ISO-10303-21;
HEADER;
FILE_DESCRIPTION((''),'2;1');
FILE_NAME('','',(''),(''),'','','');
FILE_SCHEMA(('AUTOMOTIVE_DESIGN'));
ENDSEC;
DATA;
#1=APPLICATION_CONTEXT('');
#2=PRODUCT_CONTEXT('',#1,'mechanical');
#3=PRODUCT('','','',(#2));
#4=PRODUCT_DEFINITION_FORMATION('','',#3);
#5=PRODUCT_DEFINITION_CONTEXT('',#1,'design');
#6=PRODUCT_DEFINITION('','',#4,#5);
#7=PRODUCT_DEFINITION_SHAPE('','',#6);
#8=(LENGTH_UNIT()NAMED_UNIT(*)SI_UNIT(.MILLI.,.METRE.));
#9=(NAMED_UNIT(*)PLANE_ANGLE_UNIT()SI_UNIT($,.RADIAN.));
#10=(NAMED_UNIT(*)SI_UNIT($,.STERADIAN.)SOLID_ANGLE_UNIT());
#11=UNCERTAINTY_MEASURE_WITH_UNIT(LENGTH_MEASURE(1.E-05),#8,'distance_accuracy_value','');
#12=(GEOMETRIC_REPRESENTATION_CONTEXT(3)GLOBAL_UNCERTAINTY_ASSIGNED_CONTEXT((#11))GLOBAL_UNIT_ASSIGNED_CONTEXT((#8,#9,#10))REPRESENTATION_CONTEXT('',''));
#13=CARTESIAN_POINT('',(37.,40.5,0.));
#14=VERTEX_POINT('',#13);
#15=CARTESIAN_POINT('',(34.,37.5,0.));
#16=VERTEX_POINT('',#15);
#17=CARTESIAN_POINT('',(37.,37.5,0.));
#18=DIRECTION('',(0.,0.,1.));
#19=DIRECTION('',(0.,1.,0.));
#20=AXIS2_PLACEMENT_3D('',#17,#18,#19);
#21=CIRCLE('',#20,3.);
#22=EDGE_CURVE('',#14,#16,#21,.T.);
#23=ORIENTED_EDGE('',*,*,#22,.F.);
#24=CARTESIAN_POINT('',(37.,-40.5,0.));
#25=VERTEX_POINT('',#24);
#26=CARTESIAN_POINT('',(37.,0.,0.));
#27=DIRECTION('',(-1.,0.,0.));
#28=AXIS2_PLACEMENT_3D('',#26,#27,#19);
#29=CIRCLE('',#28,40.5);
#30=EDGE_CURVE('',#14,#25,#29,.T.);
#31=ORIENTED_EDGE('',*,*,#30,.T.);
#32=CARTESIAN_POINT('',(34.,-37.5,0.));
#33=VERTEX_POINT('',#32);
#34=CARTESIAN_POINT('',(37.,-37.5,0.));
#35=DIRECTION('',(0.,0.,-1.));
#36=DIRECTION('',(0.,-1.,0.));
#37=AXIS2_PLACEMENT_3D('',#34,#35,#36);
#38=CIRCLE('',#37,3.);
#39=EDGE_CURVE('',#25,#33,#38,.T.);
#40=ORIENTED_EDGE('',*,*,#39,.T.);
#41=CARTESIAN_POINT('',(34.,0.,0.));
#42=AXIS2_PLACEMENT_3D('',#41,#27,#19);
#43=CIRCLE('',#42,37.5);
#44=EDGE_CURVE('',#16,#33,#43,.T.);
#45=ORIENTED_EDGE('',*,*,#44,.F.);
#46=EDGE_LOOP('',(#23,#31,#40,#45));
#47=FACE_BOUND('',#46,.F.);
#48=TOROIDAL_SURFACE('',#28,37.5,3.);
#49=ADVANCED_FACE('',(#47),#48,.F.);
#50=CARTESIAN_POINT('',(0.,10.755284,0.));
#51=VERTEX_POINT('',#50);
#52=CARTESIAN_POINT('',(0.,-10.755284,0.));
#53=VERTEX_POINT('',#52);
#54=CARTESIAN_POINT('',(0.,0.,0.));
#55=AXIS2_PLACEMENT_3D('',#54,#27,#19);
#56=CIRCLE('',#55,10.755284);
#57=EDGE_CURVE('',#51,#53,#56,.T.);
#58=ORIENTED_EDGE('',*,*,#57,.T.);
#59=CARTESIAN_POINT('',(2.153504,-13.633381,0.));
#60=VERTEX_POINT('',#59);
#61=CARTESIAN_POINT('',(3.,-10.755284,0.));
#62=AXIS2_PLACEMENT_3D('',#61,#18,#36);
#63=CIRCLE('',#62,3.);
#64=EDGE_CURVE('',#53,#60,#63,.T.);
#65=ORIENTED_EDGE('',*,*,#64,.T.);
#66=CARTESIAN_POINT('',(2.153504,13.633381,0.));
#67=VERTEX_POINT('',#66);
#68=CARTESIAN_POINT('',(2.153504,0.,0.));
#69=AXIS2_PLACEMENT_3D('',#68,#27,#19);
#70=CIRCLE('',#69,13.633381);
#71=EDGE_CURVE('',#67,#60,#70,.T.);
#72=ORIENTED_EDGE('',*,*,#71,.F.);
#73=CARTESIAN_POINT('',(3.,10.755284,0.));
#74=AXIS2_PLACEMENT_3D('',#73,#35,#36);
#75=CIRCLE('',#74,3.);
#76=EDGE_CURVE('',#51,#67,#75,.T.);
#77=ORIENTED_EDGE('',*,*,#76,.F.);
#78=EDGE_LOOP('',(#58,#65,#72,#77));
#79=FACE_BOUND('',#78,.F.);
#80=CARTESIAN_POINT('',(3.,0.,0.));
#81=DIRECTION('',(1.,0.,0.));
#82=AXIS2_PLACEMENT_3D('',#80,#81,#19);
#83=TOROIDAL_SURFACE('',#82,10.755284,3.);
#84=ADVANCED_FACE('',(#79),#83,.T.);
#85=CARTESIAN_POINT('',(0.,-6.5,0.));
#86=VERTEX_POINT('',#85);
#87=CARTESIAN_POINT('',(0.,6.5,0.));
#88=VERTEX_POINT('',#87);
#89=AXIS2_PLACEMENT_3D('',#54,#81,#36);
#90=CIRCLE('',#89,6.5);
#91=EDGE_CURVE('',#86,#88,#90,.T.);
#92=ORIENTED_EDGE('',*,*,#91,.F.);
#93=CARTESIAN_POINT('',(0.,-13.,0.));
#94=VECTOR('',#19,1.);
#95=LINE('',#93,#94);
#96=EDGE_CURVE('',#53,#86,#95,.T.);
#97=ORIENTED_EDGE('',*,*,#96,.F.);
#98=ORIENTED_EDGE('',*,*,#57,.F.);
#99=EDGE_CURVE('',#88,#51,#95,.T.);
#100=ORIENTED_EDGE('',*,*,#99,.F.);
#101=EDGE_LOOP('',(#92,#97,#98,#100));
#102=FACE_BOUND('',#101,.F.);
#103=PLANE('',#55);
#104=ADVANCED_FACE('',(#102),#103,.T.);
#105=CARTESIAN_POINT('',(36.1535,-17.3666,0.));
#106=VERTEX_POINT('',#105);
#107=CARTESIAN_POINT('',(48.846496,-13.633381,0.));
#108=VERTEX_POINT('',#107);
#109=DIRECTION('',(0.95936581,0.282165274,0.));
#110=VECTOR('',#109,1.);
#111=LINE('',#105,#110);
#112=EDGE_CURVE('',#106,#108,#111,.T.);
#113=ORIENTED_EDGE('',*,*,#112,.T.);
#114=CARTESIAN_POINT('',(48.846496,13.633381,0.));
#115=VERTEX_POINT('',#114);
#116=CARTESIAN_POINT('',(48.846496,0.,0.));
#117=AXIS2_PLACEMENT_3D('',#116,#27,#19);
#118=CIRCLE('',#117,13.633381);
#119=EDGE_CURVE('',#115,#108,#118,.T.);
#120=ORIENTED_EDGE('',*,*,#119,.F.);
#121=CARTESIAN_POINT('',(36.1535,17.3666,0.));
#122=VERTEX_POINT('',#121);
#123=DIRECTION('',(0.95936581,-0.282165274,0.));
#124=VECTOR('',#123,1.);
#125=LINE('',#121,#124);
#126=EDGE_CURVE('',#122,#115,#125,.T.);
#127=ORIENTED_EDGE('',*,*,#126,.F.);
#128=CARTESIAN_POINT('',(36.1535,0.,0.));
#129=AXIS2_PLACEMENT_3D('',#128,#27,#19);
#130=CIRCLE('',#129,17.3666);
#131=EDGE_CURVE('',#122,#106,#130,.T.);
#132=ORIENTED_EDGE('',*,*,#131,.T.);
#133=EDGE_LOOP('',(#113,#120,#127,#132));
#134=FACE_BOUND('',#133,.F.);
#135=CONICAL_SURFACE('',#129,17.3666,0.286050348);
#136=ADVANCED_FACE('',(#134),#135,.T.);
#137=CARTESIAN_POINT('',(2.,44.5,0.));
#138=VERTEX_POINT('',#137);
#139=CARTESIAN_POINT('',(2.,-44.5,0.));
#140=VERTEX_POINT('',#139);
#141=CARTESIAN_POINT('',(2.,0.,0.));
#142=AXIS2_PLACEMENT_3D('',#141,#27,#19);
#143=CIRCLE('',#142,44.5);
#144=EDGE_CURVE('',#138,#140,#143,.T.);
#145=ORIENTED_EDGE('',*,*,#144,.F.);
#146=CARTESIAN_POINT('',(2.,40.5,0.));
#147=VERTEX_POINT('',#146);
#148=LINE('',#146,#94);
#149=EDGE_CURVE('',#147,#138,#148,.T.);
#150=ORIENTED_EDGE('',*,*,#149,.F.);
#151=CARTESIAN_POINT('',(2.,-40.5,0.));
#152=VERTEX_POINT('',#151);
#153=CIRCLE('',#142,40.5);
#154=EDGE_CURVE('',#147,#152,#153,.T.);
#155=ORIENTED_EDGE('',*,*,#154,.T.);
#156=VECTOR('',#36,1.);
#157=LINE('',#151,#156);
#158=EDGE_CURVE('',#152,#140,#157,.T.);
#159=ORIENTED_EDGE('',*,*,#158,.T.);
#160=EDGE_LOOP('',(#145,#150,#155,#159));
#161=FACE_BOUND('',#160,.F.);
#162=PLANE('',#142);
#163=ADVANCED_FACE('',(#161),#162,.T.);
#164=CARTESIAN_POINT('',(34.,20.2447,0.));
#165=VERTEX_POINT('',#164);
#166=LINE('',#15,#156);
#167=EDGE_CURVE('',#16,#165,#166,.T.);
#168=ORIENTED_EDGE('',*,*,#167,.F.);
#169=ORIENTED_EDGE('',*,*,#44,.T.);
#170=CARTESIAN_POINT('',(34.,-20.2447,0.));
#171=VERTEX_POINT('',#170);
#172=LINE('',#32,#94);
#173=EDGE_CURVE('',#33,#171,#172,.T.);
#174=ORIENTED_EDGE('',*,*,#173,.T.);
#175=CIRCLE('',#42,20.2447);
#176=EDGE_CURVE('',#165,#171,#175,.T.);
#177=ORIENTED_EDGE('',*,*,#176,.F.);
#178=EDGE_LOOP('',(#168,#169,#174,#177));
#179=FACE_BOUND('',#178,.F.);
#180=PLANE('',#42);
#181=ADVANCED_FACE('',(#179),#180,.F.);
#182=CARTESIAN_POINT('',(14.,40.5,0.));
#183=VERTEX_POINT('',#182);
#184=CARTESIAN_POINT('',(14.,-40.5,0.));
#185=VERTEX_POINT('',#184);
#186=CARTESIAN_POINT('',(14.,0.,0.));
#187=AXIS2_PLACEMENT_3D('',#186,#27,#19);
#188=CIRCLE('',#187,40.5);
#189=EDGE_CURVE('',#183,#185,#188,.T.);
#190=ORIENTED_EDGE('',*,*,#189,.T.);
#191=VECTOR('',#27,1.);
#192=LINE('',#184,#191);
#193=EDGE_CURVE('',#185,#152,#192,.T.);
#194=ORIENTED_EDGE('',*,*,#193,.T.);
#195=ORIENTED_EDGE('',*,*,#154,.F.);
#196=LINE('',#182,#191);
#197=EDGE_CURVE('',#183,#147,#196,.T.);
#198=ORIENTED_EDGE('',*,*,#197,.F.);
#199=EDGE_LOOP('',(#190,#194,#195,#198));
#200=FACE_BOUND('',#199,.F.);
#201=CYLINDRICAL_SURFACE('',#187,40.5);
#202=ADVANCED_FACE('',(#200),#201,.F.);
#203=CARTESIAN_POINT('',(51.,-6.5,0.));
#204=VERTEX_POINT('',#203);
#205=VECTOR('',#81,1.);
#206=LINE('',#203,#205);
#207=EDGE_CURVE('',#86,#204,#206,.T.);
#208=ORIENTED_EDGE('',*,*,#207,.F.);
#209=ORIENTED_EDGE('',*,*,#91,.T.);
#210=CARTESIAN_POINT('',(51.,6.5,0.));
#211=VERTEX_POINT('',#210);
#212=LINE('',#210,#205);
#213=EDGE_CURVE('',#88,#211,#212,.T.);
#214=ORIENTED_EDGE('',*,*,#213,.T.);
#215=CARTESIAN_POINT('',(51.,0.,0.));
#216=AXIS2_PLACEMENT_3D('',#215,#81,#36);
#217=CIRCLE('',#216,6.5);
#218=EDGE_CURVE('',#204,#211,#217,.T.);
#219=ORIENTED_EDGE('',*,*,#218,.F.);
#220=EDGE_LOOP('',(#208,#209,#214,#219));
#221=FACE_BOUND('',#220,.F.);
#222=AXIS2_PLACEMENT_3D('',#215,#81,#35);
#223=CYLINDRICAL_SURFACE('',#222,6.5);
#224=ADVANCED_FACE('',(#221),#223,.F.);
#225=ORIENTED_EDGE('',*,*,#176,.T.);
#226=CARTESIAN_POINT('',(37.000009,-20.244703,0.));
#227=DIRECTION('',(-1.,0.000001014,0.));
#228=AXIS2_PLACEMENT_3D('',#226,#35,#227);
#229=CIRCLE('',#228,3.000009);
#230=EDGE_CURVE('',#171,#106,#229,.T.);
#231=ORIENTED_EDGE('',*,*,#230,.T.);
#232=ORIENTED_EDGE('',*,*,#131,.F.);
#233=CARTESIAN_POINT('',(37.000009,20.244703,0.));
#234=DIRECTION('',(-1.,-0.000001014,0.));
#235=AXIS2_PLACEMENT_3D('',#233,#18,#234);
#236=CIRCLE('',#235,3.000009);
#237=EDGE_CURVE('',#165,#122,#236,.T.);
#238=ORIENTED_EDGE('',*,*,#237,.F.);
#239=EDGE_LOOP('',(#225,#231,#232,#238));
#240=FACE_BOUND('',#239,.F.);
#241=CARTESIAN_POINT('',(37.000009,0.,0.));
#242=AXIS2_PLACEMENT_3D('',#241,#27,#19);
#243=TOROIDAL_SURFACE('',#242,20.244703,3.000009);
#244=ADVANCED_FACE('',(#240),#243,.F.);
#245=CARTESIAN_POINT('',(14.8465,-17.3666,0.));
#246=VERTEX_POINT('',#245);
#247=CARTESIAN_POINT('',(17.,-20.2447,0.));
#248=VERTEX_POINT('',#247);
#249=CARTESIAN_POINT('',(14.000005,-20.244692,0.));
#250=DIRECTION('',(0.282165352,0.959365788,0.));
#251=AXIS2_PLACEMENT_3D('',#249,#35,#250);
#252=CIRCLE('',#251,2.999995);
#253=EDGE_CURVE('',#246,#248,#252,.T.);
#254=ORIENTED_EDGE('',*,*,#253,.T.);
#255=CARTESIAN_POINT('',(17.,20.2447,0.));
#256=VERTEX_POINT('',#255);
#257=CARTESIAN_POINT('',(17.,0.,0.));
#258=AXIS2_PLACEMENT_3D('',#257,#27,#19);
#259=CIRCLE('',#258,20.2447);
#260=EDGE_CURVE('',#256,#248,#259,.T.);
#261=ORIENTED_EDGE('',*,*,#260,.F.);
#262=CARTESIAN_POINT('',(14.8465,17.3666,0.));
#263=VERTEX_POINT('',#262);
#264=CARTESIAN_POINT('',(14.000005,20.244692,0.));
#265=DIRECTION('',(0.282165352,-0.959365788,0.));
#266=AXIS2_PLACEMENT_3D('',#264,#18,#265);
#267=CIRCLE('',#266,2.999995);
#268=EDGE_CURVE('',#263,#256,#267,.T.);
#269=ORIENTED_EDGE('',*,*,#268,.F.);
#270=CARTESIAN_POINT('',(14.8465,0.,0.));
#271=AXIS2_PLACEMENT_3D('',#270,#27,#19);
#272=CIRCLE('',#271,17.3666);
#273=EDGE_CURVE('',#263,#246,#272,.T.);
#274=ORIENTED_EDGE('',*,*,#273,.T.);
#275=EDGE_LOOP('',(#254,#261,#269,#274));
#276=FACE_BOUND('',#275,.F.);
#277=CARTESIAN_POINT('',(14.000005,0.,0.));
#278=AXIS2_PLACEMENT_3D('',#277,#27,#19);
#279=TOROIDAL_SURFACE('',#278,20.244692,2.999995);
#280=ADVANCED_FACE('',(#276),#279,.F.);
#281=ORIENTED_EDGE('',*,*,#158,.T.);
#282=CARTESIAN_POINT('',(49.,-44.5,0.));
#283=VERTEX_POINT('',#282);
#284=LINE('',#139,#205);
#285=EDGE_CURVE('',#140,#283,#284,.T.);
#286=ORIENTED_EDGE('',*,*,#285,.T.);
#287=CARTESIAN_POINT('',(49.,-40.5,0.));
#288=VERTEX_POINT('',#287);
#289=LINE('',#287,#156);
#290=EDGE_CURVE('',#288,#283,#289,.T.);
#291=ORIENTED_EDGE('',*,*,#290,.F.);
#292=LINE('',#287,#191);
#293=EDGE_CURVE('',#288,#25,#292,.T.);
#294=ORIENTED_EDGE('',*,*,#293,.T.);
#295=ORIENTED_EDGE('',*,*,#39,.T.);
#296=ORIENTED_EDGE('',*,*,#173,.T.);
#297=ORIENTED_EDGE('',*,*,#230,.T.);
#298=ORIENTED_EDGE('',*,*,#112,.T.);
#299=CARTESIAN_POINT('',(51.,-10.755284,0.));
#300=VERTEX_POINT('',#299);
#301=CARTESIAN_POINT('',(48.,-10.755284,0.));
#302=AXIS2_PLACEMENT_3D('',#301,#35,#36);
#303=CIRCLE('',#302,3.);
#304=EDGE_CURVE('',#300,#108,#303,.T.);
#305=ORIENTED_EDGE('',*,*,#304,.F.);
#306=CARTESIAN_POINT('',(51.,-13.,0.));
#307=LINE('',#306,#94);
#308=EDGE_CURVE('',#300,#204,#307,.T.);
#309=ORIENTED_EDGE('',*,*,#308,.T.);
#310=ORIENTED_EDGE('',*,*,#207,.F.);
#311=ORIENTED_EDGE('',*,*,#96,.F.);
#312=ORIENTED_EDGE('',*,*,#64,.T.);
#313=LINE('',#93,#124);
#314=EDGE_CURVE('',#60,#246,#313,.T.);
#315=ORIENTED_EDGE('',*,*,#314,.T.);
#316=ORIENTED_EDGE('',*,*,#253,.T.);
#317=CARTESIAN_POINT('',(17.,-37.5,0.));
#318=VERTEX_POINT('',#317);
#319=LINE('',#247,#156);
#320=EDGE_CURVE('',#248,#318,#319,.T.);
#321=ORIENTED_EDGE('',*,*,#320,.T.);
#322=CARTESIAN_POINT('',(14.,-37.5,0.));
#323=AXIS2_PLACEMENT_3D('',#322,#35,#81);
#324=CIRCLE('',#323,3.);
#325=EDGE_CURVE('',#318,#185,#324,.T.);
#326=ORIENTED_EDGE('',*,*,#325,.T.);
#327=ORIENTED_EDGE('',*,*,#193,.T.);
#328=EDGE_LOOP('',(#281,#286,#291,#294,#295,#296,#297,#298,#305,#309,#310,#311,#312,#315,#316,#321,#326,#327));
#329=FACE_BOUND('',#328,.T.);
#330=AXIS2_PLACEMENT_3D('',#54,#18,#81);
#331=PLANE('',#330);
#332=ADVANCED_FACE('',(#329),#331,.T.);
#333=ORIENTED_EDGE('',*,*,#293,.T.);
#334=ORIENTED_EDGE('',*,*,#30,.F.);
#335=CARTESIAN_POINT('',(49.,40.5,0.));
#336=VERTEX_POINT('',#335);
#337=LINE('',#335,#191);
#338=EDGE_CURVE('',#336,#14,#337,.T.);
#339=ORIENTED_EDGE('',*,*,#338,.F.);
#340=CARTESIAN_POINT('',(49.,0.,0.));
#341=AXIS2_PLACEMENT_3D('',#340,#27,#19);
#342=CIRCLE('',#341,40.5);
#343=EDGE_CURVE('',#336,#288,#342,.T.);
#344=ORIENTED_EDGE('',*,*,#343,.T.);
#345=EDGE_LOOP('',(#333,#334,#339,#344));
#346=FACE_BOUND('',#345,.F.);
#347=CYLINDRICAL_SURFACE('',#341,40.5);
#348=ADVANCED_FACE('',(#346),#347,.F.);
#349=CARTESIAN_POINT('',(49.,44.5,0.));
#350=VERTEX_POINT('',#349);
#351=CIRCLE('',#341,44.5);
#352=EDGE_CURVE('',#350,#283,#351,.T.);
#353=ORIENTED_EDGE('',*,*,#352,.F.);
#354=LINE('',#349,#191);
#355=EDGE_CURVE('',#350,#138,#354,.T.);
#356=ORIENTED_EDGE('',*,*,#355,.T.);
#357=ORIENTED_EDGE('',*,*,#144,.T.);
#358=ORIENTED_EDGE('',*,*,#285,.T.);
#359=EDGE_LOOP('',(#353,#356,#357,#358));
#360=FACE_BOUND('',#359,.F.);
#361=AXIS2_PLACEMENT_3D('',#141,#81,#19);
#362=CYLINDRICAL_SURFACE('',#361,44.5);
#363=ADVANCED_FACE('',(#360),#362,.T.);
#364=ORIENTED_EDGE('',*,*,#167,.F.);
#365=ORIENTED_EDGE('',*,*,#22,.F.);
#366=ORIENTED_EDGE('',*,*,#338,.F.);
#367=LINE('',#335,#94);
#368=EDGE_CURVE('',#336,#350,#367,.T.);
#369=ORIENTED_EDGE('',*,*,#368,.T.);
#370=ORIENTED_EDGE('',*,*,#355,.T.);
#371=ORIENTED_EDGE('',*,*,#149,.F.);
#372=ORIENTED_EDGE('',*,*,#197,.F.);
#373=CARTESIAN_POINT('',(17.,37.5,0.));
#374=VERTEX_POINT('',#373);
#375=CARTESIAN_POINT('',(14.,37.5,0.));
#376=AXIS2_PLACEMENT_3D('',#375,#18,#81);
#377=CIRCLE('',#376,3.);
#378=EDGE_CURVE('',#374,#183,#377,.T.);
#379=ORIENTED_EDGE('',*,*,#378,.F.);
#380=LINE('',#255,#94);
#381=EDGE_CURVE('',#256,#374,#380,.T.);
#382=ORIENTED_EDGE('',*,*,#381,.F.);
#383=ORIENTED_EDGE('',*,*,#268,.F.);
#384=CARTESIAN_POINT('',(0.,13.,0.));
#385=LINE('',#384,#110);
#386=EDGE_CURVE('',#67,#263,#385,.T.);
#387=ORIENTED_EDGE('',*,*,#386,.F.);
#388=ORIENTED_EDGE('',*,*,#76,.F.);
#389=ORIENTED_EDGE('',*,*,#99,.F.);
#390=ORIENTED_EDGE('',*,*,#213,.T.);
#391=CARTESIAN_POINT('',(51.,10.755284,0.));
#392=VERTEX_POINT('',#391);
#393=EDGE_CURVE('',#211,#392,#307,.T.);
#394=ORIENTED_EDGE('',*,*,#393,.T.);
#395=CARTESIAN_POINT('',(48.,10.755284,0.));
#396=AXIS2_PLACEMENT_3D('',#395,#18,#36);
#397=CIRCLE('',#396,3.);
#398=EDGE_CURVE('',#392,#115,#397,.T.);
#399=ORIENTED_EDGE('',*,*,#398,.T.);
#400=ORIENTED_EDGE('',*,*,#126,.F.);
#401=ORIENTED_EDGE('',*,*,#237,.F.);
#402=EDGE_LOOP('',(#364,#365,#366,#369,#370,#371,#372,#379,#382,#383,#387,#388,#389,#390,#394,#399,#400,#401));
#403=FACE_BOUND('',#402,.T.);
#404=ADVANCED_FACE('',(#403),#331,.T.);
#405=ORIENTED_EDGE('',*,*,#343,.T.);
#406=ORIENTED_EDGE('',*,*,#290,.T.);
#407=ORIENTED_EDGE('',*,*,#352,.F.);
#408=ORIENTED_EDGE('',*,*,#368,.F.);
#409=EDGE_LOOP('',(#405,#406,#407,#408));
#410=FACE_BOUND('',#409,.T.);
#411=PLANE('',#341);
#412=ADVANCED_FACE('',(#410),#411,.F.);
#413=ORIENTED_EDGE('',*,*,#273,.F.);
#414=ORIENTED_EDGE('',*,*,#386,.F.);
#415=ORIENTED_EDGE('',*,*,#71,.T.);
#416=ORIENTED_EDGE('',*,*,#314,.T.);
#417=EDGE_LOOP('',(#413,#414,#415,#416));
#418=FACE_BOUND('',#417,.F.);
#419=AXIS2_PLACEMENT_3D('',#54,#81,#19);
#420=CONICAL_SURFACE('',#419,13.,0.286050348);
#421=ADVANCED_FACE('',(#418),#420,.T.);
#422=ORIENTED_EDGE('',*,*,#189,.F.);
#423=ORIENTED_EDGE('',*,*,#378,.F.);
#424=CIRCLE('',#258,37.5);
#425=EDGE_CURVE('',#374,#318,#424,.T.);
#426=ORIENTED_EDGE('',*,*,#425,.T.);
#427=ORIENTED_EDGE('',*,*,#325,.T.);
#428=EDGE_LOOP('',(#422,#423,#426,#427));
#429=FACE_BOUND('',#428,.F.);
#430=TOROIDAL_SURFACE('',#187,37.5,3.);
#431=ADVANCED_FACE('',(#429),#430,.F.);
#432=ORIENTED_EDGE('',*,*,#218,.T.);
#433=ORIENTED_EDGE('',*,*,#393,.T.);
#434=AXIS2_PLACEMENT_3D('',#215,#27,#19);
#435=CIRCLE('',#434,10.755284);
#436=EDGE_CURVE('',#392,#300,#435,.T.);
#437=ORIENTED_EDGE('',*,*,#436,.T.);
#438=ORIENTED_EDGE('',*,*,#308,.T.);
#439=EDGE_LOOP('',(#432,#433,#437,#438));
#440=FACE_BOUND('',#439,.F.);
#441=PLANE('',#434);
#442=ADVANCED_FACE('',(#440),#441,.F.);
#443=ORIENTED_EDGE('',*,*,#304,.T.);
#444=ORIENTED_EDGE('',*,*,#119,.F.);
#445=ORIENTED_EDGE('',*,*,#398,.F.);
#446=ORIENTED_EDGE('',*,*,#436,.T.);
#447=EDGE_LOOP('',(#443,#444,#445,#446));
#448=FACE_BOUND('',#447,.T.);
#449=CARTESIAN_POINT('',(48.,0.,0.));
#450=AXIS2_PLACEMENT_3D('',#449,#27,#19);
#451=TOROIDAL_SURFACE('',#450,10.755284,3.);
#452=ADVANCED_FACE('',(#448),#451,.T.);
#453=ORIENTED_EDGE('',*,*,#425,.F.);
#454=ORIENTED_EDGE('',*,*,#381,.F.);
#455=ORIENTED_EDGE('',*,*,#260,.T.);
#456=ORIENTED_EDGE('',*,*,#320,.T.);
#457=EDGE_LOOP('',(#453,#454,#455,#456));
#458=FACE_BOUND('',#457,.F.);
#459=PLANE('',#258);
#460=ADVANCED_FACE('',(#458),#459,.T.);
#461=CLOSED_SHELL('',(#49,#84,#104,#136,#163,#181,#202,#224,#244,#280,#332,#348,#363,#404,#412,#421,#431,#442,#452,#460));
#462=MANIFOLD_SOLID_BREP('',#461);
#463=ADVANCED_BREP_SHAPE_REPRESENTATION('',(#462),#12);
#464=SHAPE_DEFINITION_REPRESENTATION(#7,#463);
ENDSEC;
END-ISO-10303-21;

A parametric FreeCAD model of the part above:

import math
import FreeCAD as App
import Part
import Sketcher
Q = App.Units.Quantity


def edges_at(feature, points):
    """Names of the edges that pass closest to the given points."""
    edges = feature.Shape.Edges
    near = lambda p: min(range(len(edges)), key=lambda i: edges[i].distToShape(Part.Vertex(*p))[0])
    return sorted({f"Edge{near(p) + 1}" for p in points})

doc = App.newDocument("Part")
body = doc.addObject("PartDesign::Body", "Body")

sketch1 = body.newObject("Sketcher::SketchObject", "Sketch")
sketch1.AttachmentSupport = (doc.getObject("XY_Plane"), [""])
sketch1.MapMode = "FlatFace"
sketch1.addGeometry([
    Part.LineSegment(App.Vector(0, 13, 0), App.Vector(0, 0, 0)),
    Part.LineSegment(App.Vector(0, 0, 0), App.Vector(51, 0, 0)),
    Part.LineSegment(App.Vector(51, 0, 0), App.Vector(51, 13, 0)),
    Part.LineSegment(App.Vector(51, 13, 0), App.Vector(36.2, 17.4, 0)),
    Part.ArcOfCircle(Part.Circle(App.Vector(37, 20.2, 0), App.Vector(0, 0, 1), 3), math.radians(180), math.radians(254)),
    Part.LineSegment(App.Vector(34, 20.2, 0), App.Vector(34, 37.5, 0)),
    Part.ArcOfCircle(Part.Circle(App.Vector(37, 37.5, 0), App.Vector(0, 0, 1), 3), math.radians(90), math.radians(180)),
    Part.LineSegment(App.Vector(37, 40.5, 0), App.Vector(49, 40.5, 0)),
    Part.LineSegment(App.Vector(49, 40.5, 0), App.Vector(49, 44.5, 0)),
    Part.LineSegment(App.Vector(49, 44.5, 0), App.Vector(2, 44.5, 0)),
    Part.LineSegment(App.Vector(2, 44.5, 0), App.Vector(2, 40.5, 0)),
    Part.LineSegment(App.Vector(2, 40.5, 0), App.Vector(14, 40.5, 0)),
    Part.ArcOfCircle(Part.Circle(App.Vector(14, 37.5, 0), App.Vector(0, 0, 1), 3), math.radians(0), math.radians(90)),
    Part.LineSegment(App.Vector(17, 37.5, 0), App.Vector(17, 20.2, 0)),
    Part.ArcOfCircle(Part.Circle(App.Vector(14, 20.2, 0), App.Vector(0, 0, 1), 3), math.radians(-74), math.radians(0)),
    Part.LineSegment(App.Vector(14.8, 17.4, 0), App.Vector(0, 13, 0)),
], False)
sketch1.addConstraint([
    Sketcher.Constraint("Coincident", 0, 2, 1, 1),
    Sketcher.Constraint("Coincident", 1, 2, 2, 1),
    Sketcher.Constraint("Coincident", 2, 2, 3, 1),
    Sketcher.Constraint("Tangent", 3, 2, 4, 2),
    Sketcher.Constraint("Tangent", 4, 1, 5, 1),
    Sketcher.Constraint("Tangent", 5, 2, 6, 2),
    Sketcher.Constraint("Tangent", 6, 1, 7, 1),
    Sketcher.Constraint("Coincident", 7, 2, 8, 1),
    Sketcher.Constraint("Coincident", 8, 2, 9, 1),
    Sketcher.Constraint("Coincident", 9, 2, 10, 1),
    Sketcher.Constraint("Coincident", 10, 2, 11, 1),
    Sketcher.Constraint("Tangent", 11, 2, 12, 2),
    Sketcher.Constraint("Tangent", 12, 1, 13, 1),
    Sketcher.Constraint("Tangent", 13, 2, 14, 2),
    Sketcher.Constraint("Tangent", 14, 1, 15, 1),
    Sketcher.Constraint("Coincident", 15, 2, 0, 1),
    Sketcher.Constraint("Vertical", 0),
    Sketcher.Constraint("Horizontal", 1),
    Sketcher.Constraint("Vertical", 2),
    Sketcher.Constraint("Vertical", 5),
    Sketcher.Constraint("Horizontal", 7),
    Sketcher.Constraint("Vertical", 8),
    Sketcher.Constraint("Horizontal", 9),
    Sketcher.Constraint("Vertical", 10),
    Sketcher.Constraint("Horizontal", 11),
    Sketcher.Constraint("Vertical", 13),
    Sketcher.Constraint("Coincident", 0, 2, -1, 1),
    Sketcher.Constraint("Equal", 4, 6),
    Sketcher.Constraint("Equal", 6, 12),
    Sketcher.Constraint("Equal", 12, 14),
    Sketcher.Constraint("Horizontal", 6, 3, 12, 3),
    Sketcher.Constraint("Horizontal", 4, 3, 14, 3),
    Sketcher.Constraint("Horizontal", 3, 2, 14, 1),
    Sketcher.Constraint("Horizontal", 2, 2, 15, 2),
    Sketcher.Constraint("Equal", 7, 11),
    Sketcher.Constraint("Radius", 4, 3.0),
    Sketcher.Constraint("DistanceX", 1, 1, 1, 2, 51.0),
    Sketcher.Constraint("DistanceX", 9, 2, 9, 1, 47.0),
    Sketcher.Constraint("DistanceY", 0, 2, 0, 1, 13.0),
    Sketcher.Constraint("DistanceY", 8, 1, 8, 2, 4.0),
    Sketcher.Constraint("DistanceX", -1, 1, 12, 1, 17.0),
    Sketcher.Constraint("DistanceY", -1, 1, 6, 1, 40.5),
    Sketcher.Constraint("Angle", 3, Q("163.6105 deg")),
])
revolution = body.newObject("PartDesign::Revolution", "Revolution")
revolution.Profile = sketch1
revolution.ReferenceAxis = (sketch1, ["H_Axis"])
revolution.Angle = 180
revolution.Reversed = True

sketch2 = body.newObject("Sketcher::SketchObject", "Sketch001")
sketch2.AttachmentSupport = (doc.getObject("YZ_Plane"), [""])
sketch2.MapMode = "FlatFace"
sketch2.AttachmentOffset = App.Placement(App.Vector(0, 0, 51), App.Rotation())
sketch2.addGeometry(Part.Circle(App.Vector(0, 0, 0), App.Vector(0, 0, 1), 6), False)
sketch2.addConstraint([
    Sketcher.Constraint("Coincident", 0, 3, -1, 1),
    Sketcher.Constraint("Diameter", 0, 13.0),
])
pocket1 = body.newObject("PartDesign::Pocket", "Pocket")
pocket1.Profile = sketch2
pocket1.Type = "UpToFirst"
doc.recompute()

fillet = body.newObject("PartDesign::Fillet", "Fillet")
fillet.Base = (pocket1, edges_at(pocket1, [(51, 0, -13), (0, 0, -13)]))
fillet.Radius = 3

doc.recompute()
